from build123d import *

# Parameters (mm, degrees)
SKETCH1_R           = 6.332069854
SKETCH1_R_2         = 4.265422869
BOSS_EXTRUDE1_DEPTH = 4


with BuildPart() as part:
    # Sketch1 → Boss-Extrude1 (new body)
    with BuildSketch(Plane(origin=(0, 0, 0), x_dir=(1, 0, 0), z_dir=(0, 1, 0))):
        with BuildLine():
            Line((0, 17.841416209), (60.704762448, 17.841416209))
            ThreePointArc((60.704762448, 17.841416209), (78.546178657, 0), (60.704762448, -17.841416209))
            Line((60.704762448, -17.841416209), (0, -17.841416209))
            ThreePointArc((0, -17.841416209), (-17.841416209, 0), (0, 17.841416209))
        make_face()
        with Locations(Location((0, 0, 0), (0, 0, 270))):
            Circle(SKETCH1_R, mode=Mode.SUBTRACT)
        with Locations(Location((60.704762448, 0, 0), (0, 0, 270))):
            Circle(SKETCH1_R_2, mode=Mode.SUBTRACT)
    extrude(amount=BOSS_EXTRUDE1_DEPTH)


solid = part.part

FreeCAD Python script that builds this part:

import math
import FreeCAD as App
import Part
import Sketcher
from FreeCAD import Vector

doc = App.newDocument("Part")
body = doc.addObject("PartDesign::Body", "Body")

sketch1 = doc.addObject("Sketcher::SketchObject", "Sketch")
body.addObject(sketch1)
sketch1.AttachmentSupport = (doc.XZ_Plane, [""])
sketch1.MapMode = "FlatFace"
sketch1.addGeometry(Part.LineSegment(Vector(60.7, -17.8, 0), Vector(0, -17.8, 0)), False)
sketch1.addGeometry(Part.ArcOfCircle(Part.Circle(Vector(0, 0, 0), Vector(0, 0, 1), 17.8), math.radians(90), math.radians(270)), False)
sketch1.addGeometry(Part.LineSegment(Vector(0, 17.8, 0), Vector(60.7, 17.8, 0)), False)
sketch1.addGeometry(Part.ArcOfCircle(Part.Circle(Vector(60.7, 0, 0), Vector(0, 0, 1), 17.8), math.radians(-90), math.radians(90)), False)
sketch1.addGeometry(Part.Circle(Vector(60.7, 0, 0), Vector(0, 0, 1), 4.3), False)
sketch1.addGeometry(Part.Circle(Vector(0, 0, 0), Vector(0, 0, 1), 6.3), False)
sketch1.addConstraint(Sketcher.Constraint("Tangent", 0, 2, 1, 2))
sketch1.addConstraint(Sketcher.Constraint("Tangent", 1, 1, 2, 1))
sketch1.addConstraint(Sketcher.Constraint("Tangent", 2, 2, 3, 2))
sketch1.addConstraint(Sketcher.Constraint("Tangent", 3, 1, 0, 1))
sketch1.addConstraint(Sketcher.Constraint("Horizontal", 0))
sketch1.addConstraint(Sketcher.Constraint("Horizontal", 2))
sketch1.addConstraint(Sketcher.Constraint("Coincident", 1, 3, -1, 1))
sketch1.addConstraint(Sketcher.Constraint("Coincident", 5, 3, -1, 1))
sketch1.addConstraint(Sketcher.Constraint("Coincident", 4, 3, 3, 3))
sketch1.addConstraint(Sketcher.Constraint("Diameter", 5, 12.66414))
sketch1.addConstraint(Sketcher.Constraint("Diameter", 4, 8.530846))
sketch1.addConstraint(Sketcher.Constraint("Radius", 1, 17.841416))
sketch1.addConstraint(Sketcher.Constraint("DistanceX", 0, 2, 0, 1, 60.704762))
pad1 = doc.addObject("PartDesign::Pad", "Pad")
body.addObject(pad1)
pad1.Profile = sketch1
pad1.Length = 4
pad1.Reversed = True

doc.recompute()
